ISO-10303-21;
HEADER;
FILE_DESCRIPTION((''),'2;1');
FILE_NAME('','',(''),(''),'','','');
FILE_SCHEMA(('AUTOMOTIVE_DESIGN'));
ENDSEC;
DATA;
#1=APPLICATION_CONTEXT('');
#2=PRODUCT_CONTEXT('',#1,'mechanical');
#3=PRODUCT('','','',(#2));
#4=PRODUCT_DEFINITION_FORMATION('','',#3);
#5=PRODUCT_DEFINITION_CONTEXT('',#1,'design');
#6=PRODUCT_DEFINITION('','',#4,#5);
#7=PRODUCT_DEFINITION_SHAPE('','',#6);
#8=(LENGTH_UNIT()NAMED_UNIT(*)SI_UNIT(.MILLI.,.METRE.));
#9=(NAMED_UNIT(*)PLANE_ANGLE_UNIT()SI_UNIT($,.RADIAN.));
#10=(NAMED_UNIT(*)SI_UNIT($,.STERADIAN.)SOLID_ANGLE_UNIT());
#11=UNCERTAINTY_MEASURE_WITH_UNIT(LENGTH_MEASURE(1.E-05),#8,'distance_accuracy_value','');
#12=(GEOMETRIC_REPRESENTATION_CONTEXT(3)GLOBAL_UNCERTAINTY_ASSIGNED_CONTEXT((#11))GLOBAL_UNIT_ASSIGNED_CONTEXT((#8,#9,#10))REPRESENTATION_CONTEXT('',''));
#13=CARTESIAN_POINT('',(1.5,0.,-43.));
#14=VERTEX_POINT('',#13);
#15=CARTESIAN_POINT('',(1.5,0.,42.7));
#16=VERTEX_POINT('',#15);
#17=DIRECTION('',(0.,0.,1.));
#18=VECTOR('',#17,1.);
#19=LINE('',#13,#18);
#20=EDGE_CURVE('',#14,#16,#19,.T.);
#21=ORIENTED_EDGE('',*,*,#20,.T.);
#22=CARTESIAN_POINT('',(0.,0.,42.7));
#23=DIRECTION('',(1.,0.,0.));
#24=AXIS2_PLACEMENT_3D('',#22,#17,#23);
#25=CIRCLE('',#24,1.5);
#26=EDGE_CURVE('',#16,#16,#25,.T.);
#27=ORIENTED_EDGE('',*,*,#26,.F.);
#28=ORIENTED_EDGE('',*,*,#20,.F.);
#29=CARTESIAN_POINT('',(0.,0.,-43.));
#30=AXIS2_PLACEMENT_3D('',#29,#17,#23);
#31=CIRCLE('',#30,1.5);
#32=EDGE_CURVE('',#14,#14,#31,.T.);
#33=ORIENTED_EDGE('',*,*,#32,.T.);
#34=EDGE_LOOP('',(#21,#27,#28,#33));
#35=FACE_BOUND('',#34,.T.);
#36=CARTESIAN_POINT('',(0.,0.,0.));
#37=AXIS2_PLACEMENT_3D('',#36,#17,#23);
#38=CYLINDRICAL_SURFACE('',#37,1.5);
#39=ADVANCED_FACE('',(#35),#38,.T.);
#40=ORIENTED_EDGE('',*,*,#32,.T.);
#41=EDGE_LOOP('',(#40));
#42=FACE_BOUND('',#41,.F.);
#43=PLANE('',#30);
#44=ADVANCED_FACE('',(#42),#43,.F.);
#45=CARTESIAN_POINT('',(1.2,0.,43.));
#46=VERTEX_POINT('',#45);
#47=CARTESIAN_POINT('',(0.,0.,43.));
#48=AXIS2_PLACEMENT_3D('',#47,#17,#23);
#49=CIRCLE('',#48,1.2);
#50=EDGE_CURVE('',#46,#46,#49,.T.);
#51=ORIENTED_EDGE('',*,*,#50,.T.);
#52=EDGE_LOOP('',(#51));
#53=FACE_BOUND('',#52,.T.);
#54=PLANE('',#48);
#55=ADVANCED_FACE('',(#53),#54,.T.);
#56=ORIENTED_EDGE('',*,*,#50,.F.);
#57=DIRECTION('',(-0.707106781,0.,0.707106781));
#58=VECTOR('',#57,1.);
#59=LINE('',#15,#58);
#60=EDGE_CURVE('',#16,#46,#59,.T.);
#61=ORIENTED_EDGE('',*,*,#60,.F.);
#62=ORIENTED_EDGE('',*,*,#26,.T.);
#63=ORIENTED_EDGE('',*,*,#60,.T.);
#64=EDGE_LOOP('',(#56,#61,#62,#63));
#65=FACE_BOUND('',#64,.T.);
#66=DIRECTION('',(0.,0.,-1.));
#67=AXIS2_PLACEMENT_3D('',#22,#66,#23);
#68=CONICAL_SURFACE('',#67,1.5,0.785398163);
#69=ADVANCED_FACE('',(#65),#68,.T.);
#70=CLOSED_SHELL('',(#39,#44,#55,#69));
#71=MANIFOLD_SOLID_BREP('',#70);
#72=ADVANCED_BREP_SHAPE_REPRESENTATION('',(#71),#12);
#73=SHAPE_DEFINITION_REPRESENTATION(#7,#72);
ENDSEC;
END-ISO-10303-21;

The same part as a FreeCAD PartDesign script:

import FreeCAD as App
import Part
import Sketcher
from FreeCAD import Vector
Q = App.Units.Quantity


def edges_at(feature, points):
    """Names of the edges that pass closest to the given points."""
    edges = feature.Shape.Edges
    near = lambda p: min(range(len(edges)), key=lambda i: edges[i].distToShape(Part.Vertex(*p))[0])
    return sorted({f"Edge{near(p) + 1}" for p in points})

doc = App.newDocument("Part")
params = doc.addObject("Spreadsheet::Sheet", "Params")
for row, (alias, value) in enumerate([
    ("sketch1_diameter", "3 mm"),
    ("pad1_length", "86 mm"),
    ("chamfer_size", "0.3 mm"),
], start=1):
    params.set(f"A{row}", alias)
    params.set(f"B{row}", "=" + value)
    params.setAlias(f"B{row}", alias)

body = doc.addObject("PartDesign::Body", "Body")

sketch1 = body.newObject("Sketcher::SketchObject", "Sketch")
sketch1.AttachmentSupport = (doc.getObject("XY_Plane"), [""])
sketch1.MapMode = "FlatFace"
sketch1.addGeometry(Part.Circle(Vector(0, 0, 0), Vector(0, 0, 1), 1.5), False)
sketch1.addConstraint([
    Sketcher.Constraint("Coincident", 0, 3, -1, 1),
    Sketcher.Constraint("Diameter", 0, Q("3 mm")),
])
sketch1.setExpression("Constraints[1]", "Params.sketch1_diameter")
pad1 = body.newObject("PartDesign::Pad", "Pad")
pad1.Profile = sketch1
pad1.setExpression("Length", "Params.pad1_length")
pad1.Midplane = True
doc.recompute()

chamfer = body.newObject("PartDesign::Chamfer", "Chamfer")
chamfer.Base = (pad1, edges_at(pad1, [(-1.5, 0, 43)]))
chamfer.setExpression("Size", "Params.chamfer_size")

doc.recompute()
